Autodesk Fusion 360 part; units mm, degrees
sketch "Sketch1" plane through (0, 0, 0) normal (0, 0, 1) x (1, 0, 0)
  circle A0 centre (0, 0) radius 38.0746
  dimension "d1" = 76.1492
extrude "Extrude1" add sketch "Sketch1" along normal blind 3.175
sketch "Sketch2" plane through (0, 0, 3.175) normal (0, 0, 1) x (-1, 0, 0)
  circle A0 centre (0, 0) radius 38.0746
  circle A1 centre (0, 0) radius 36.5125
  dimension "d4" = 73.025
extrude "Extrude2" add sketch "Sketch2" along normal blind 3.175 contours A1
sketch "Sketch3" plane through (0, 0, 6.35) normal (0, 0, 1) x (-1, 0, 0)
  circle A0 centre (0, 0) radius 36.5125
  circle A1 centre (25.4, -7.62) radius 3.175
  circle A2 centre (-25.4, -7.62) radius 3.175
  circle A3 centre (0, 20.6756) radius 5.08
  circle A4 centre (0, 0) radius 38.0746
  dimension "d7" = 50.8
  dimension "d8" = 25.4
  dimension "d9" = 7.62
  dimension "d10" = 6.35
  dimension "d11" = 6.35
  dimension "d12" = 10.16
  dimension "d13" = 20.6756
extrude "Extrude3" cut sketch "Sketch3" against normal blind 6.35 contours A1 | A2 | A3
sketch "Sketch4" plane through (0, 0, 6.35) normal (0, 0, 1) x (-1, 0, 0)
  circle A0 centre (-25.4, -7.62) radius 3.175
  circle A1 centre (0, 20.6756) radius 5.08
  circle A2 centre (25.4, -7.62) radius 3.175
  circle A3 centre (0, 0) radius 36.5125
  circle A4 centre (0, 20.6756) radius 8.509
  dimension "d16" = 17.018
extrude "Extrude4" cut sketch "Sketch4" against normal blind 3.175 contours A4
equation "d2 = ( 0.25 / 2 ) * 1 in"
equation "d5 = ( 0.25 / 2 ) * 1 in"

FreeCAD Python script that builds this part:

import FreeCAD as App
import Part
import Sketcher

V = App.Vector
Q = App.Units.Quantity

doc = App.newDocument("Part")
body = doc.addObject("PartDesign::Body", "Body")

sketch1 = body.newObject("Sketcher::SketchObject", "Sketch")
sketch1.AttachmentSupport = (doc.getObject("XY_Plane"), [""])
sketch1.MapMode = "FlatFace"
sketch1.addGeometry(Part.Circle(V(0, 0, 0), V(0, 0, 1), 38), False)
sketch1.addConstraint(Sketcher.Constraint("Coincident", 0, 3, -1, 1))
sketch1.addConstraint(Sketcher.Constraint("Diameter", 0, Q("2.998 in")))
pad1 = body.newObject("PartDesign::Pad", "Pad")
pad1.Profile = sketch1
pad1.Length = Q("0.125 in")

sketch2 = body.newObject("Sketcher::SketchObject", "Sketch001")
sketch2.AttachmentSupport = (doc.getObject("XY_Plane"), [""])
sketch2.MapMode = "FlatFace"
sketch2.AttachmentOffset = App.Placement(V(0, 0, 0.125 * 25.4), App.Rotation())
sketch2.addGeometry(Part.Circle(V(0, 0, 0), V(0, 0, 1), 37), False)
sketch2.addConstraint(Sketcher.Constraint("Coincident", 0, 3, -1, 1))
sketch2.addConstraint(Sketcher.Constraint("Diameter", 0, Q("2.875 in")))
pad2 = body.newObject("PartDesign::Pad", "Pad001")
pad2.Profile = sketch2
pad2.Length = Q("0.125 in")

sketch3 = body.newObject("Sketcher::SketchObject", "Sketch002")
sketch3.AttachmentSupport = (doc.getObject("XY_Plane"), [""])
sketch3.MapMode = "FlatFace"
sketch3.AttachmentOffset = App.Placement(V(0, 0, 0.25 * 25.4), App.Rotation())
sketch3.addGeometry(Part.Circle(V(-25.4, 7.6, 0), V(0, 0, 1), 3.2), False)
sketch3.addGeometry(Part.Circle(V(25.4, 7.6, 0), V(0, 0, 1), 3.2), False)
sketch3.addGeometry(Part.Circle(V(0, -20.7, 0), V(0, 0, 1), 5.1), False)
sketch3.addConstraint(Sketcher.Constraint("Equal", 0, 1))
sketch3.addConstraint(Sketcher.Constraint("Symmetric", 0, 3, 1, 3, -2))
sketch3.addConstraint(Sketcher.Constraint("PointOnObject", 2, 3, -2))
sketch3.addConstraint(Sketcher.Constraint("Diameter", 2, Q("0.4 in")))
sketch3.addConstraint(Sketcher.Constraint("Diameter", 0, Q("0.25 in")))
sketch3.addConstraint(Sketcher.Constraint("DistanceX", 0, 3, -1, 1, Q("1 in")))
sketch3.addConstraint(Sketcher.Constraint("DistanceY", -1, 1, 0, 3, Q("0.3 in")))
sketch3.addConstraint(Sketcher.Constraint("DistanceY", 2, 3, -1, 1, Q("0.814 in")))
pocket1 = body.newObject("PartDesign::Pocket", "Pocket")
pocket1.Profile = sketch3
pocket1.Length = Q("0.25 in")

sketch4 = body.newObject("Sketcher::SketchObject", "Sketch003")
sketch4.AttachmentSupport = (doc.getObject("XY_Plane"), [""])
sketch4.MapMode = "FlatFace"
sketch4.AttachmentOffset = App.Placement(V(0, 0, 0.25 * 25.4), App.Rotation())
sketch4.addGeometry(Part.Circle(V(0, -21, 0), V(0, 0, 1), 9), False)
sketch4.addGeometry(Part.Circle(V(0, -21, 0), V(0, 0, 1), 5), False)
sketch4.addConstraint(Sketcher.Constraint("Coincident", 1, 3, 0, 3))
sketch4.addConstraint(Sketcher.Constraint("PointOnObject", 0, 3, -2))
sketch4.addConstraint(Sketcher.Constraint("Diameter", 0, Q("0.67 in")))
sketch4.addConstraint(Sketcher.Constraint("Diameter", 1, Q("0.4 in")))
sketch4.addConstraint(Sketcher.Constraint("DistanceY", 0, 3, -1, 1, Q("0.814 in")))
pocket2 = body.newObject("PartDesign::Pocket", "Pocket001")
pocket2.Profile = sketch4
pocket2.Length = Q("0.125 in")

doc.recompute()
